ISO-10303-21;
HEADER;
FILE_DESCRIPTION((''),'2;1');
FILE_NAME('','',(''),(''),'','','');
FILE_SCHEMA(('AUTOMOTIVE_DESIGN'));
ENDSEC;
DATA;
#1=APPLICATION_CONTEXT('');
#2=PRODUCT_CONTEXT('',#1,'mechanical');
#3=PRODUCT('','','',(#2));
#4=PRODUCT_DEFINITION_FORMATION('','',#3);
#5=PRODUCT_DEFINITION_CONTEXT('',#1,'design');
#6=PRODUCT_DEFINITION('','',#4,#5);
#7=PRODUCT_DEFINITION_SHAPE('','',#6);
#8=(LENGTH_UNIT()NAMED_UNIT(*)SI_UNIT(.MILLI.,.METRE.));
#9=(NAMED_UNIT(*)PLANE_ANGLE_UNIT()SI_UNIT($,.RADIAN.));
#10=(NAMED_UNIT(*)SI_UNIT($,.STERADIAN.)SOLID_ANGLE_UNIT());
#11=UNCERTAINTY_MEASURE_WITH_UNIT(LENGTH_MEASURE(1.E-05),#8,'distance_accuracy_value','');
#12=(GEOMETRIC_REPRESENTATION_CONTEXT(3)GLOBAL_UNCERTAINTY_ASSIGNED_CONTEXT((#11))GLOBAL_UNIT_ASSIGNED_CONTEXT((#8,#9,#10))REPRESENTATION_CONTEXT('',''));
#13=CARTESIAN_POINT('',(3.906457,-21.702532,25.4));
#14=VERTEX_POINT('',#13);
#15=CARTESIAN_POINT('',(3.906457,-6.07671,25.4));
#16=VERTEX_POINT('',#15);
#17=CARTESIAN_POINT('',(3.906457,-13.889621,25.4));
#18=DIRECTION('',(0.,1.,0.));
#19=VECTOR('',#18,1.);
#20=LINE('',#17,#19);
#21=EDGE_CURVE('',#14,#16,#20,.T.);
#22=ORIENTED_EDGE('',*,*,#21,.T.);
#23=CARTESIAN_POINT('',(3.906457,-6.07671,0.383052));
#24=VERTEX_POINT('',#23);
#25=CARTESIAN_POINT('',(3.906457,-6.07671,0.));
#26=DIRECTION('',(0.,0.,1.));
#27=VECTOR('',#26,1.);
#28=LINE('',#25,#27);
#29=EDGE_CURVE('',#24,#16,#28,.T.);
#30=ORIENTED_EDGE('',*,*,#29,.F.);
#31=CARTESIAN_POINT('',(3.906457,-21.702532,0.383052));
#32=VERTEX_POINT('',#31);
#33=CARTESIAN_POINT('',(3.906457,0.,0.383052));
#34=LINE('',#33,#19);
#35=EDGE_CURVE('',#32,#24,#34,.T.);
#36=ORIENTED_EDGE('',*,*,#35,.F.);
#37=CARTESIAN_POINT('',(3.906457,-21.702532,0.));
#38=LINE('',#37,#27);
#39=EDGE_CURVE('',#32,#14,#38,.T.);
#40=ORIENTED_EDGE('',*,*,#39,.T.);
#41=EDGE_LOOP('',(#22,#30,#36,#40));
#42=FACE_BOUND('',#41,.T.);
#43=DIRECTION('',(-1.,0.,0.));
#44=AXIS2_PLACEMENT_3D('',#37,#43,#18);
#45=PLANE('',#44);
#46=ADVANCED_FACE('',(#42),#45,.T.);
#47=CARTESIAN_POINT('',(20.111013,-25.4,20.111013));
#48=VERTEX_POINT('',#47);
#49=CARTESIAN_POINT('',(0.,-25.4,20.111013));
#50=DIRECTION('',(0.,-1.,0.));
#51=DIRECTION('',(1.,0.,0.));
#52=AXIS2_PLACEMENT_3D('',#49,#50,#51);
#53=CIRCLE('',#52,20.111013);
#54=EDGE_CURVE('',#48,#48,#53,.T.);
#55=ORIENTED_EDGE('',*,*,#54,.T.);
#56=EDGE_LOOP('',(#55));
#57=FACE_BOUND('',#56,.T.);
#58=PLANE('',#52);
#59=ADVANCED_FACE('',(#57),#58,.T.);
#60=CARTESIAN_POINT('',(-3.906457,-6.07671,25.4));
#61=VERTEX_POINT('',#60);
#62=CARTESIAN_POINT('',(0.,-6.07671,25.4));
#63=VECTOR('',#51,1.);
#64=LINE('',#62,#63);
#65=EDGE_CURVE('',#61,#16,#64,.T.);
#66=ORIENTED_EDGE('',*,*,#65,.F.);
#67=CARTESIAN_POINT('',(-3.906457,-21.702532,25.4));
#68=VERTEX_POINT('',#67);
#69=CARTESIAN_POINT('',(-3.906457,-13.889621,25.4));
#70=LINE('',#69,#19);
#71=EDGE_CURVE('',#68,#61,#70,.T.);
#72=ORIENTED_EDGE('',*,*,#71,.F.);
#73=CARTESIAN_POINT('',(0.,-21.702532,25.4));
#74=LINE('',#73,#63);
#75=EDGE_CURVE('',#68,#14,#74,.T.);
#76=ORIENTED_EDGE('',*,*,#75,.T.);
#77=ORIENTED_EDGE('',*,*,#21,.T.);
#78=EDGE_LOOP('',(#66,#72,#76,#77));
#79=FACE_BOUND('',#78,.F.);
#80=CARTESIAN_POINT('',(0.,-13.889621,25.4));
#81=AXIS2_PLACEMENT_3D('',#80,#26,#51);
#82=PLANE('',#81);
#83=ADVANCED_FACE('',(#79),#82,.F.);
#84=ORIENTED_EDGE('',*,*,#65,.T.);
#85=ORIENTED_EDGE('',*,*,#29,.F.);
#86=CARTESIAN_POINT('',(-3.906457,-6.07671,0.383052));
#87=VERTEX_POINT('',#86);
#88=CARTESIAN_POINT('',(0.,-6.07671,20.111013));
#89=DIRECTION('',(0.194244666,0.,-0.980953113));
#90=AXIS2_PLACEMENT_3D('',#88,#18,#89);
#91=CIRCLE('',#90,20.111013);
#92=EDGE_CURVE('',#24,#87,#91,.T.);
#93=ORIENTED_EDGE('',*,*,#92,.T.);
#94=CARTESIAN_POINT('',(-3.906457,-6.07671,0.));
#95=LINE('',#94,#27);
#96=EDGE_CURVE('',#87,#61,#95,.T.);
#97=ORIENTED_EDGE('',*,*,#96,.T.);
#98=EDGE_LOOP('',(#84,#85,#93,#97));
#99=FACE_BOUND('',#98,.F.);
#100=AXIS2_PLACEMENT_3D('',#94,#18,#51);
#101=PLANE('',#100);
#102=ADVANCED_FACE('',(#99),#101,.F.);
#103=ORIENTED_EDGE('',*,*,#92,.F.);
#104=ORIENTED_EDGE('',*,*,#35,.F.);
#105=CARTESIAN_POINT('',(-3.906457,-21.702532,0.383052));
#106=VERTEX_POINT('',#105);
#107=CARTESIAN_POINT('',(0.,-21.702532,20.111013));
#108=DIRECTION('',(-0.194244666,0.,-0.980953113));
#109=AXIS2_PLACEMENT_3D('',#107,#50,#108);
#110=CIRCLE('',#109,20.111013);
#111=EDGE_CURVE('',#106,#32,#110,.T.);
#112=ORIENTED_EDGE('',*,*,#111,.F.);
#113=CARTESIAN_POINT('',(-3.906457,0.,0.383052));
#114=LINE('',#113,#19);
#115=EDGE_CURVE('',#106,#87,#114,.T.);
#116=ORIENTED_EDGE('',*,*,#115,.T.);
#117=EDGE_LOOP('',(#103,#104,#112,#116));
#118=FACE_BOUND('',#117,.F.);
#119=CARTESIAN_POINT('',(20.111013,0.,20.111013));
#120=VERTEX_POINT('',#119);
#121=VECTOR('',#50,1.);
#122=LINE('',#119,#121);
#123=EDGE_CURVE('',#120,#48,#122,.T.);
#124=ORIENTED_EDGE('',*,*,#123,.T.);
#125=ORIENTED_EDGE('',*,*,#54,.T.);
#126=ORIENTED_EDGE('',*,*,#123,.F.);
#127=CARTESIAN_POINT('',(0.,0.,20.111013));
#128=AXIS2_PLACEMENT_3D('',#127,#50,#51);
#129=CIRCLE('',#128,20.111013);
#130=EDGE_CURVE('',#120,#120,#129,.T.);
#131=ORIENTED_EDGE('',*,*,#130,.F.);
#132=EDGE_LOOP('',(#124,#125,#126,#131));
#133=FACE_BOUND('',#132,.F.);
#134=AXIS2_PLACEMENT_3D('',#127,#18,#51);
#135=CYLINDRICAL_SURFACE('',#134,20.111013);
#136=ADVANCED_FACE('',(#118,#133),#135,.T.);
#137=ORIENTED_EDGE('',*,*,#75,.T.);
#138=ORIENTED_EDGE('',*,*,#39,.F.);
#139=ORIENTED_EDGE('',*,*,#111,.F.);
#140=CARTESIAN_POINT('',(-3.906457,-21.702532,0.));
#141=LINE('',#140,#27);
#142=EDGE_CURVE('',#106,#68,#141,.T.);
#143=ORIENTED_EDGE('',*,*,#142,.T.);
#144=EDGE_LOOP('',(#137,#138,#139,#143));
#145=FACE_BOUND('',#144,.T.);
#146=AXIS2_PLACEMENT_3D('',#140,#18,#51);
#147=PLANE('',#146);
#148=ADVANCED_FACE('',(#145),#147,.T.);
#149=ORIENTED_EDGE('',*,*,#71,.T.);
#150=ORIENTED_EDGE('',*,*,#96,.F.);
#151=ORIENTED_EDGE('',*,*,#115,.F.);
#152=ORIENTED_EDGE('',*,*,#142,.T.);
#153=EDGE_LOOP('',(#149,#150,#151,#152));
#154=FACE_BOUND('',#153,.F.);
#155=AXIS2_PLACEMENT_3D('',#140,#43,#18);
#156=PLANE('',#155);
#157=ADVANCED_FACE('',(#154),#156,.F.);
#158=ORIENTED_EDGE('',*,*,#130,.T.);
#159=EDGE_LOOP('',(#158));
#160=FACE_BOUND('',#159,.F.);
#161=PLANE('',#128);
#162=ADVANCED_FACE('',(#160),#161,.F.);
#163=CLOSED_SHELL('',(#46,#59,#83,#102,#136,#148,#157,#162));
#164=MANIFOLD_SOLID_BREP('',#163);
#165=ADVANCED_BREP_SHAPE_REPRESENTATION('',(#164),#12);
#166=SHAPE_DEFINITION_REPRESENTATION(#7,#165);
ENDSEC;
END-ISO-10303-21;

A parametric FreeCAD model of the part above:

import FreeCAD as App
import Part
import Sketcher

V = App.Vector
Q = App.Units.Quantity


def add_polygon(sketch, points):
    """Adds a closed chain of lines whose ends are joined by coincident constraints."""
    first, n = sketch.GeometryCount, len(points)
    for a, b in zip(points, points[1:] + points[:1]):
        sketch.addGeometry(Part.LineSegment(App.Vector(*a, 0), App.Vector(*b, 0)), False)
    for i in range(n):
        sketch.addConstraint(Sketcher.Constraint("Coincident", first + i, 2, first + (i + 1) % n, 1))

doc = App.newDocument("Part")
body = doc.addObject("PartDesign::Body", "Body")

# Sketch on XZ plane
sketch1 = doc.addObject("Sketcher::SketchObject", "Sketch")
body.addObject(sketch1)
sketch1.AttachmentSupport = (doc.XZ_Plane, [""])
sketch1.MapMode = "FlatFace"
sketch1.addGeometry(Part.Circle(V(0, 20.111013, 0), V(0, 0, 1), 20.111013), False)
sketch1.addConstraint([
    Sketcher.Constraint("PointOnObject", 0, 3, -2),
    Sketcher.Constraint("Diameter", 0, Q("40.222026 mm")),
    Sketcher.Constraint("DistanceY", -1, 1, 0, 3, Q("20.111013 mm")),
])
pad1 = doc.addObject("PartDesign::Pad", "Pad")
body.addObject(pad1)
pad1.Profile = sketch1
pad1.Length = Q("1 in")

# Sketch on XY plane
sketch2 = doc.addObject("Sketcher::SketchObject", "Sketch001")
body.addObject(sketch2)
sketch2.AttachmentSupport = (doc.XY_Plane, [""])
sketch2.MapMode = "FlatFace"
add_polygon(sketch2, [(-3.906457, -6.07671), (-3.906457, -21.702532), (3.906457, -21.702532), (3.906457, -6.07671)])  # lines 0-3
sketch2.addConstraint([
    Sketcher.Constraint("Vertical", 0),
    Sketcher.Constraint("Horizontal", 1),
    Sketcher.Constraint("Vertical", 2),
    Sketcher.Constraint("Horizontal", 3),
    Sketcher.Constraint("DistanceX", 1, 1, 1, 2, Q("7.812914 mm")),
    Sketcher.Constraint("DistanceY", 0, 2, 0, 1, Q("15.625822 mm")),
    Sketcher.Constraint("DistanceY", 2, 2, -1, 1, Q("6.07671 mm")),
    Sketcher.Constraint("DistanceX", 0, 2, -1, 1, Q("3.906457 mm")),
])
pocket1 = doc.addObject("PartDesign::Pocket", "Pocket")
body.addObject(pocket1)
pocket1.Profile = sketch2
pocket1.Length = Q("1 in")
pocket1.Reversed = True

doc.recompute()
